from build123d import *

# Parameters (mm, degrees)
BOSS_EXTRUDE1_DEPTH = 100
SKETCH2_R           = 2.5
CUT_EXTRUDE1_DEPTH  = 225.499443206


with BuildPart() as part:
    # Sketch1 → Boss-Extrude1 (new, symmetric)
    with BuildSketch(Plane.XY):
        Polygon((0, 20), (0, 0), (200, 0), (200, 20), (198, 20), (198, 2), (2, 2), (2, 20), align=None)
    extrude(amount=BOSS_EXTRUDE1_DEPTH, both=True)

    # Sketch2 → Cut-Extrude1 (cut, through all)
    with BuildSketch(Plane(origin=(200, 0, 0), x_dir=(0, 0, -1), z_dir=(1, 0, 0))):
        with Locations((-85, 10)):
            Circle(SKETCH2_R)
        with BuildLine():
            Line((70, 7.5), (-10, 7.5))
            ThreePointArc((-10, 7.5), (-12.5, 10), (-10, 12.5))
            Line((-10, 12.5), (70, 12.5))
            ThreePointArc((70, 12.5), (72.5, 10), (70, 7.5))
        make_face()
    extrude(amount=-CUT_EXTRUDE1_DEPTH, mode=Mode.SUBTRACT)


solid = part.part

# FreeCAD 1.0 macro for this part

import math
import FreeCAD as App
import Part
import Sketcher
from FreeCAD import Vector


def add_polygon(sketch, points):
    """Adds a closed chain of lines whose ends are joined by coincident constraints."""
    first, n = sketch.GeometryCount, len(points)
    for a, b in zip(points, points[1:] + points[:1]):
        sketch.addGeometry(Part.LineSegment(App.Vector(*a, 0), App.Vector(*b, 0)), False)
    for i in range(n):
        sketch.addConstraint(Sketcher.Constraint("Coincident", first + i, 2, first + (i + 1) % n, 1))

doc = App.newDocument("Part")
body = doc.addObject("PartDesign::Body", "Body")

# Sketch on XY plane
sketch1 = body.newObject("Sketcher::SketchObject", "Sketch")
sketch1.AttachmentSupport = (doc.getObject("XY_Plane"), [""])
sketch1.MapMode = "FlatFace"
add_polygon(sketch1, [(0, 20), (0, 0), (200, 0), (200, 20), (198, 20), (198, 2), (2, 2), (2, 20)])  # lines 0-7
sketch1.addConstraint([
    Sketcher.Constraint("Vertical", 0),
    Sketcher.Constraint("Horizontal", 1),
    Sketcher.Constraint("Vertical", 2),
    Sketcher.Constraint("Horizontal", 3),
    Sketcher.Constraint("Vertical", 4),
    Sketcher.Constraint("Horizontal", 5),
    Sketcher.Constraint("Vertical", 6),
    Sketcher.Constraint("Horizontal", 7),
    Sketcher.Constraint("Coincident", 0, 2, -1, 1),
    Sketcher.Constraint("Horizontal", 3, 2, 6, 2),
    Sketcher.Constraint("Equal", 3, 7),
    Sketcher.Constraint("DistanceX", 1, 1, 1, 2, 200.0),
    Sketcher.Constraint("DistanceX", 3, 2, 3, 1, 2.0),
    Sketcher.Constraint("DistanceY", 0, 2, 0, 1, 20.0),
    Sketcher.Constraint("DistanceY", 4, 2, 4, 1, 18.0),
])
pad1 = body.newObject("PartDesign::Pad", "Pad")
pad1.Profile = sketch1
pad1.Length = 200
pad1.Midplane = True

# Sketch on YZ plane
sketch2 = body.newObject("Sketcher::SketchObject", "Sketch001")
sketch2.AttachmentSupport = (doc.getObject("YZ_Plane"), [""])
sketch2.MapMode = "FlatFace"
sketch2.AttachmentOffset = App.Placement(Vector(0, 0, 200), App.Rotation())
sketch2.addGeometry([
    Part.Circle(Vector(10, 85, 0), Vector(0, 0, 1), 2.5),  # 0
    Part.LineSegment(Vector(7.5, 10, 0), Vector(7.5, -70, 0)),  # 1
    Part.ArcOfCircle(Part.Circle(Vector(10, -70, 0), Vector(0, 0, 1), 2.5), math.radians(180), math.radians(360)),  # 2
    Part.LineSegment(Vector(12.5, -70, 0), Vector(12.5, 10, 0)),  # 3
    Part.ArcOfCircle(Part.Circle(Vector(10, 10, 0), Vector(0, 0, 1), 2.5), math.radians(0), math.radians(180)),  # 4
], False)
sketch2.addConstraint([
    Sketcher.Constraint("Tangent", 1, 2, 2, 1),
    Sketcher.Constraint("Tangent", 2, 2, 3, 1),
    Sketcher.Constraint("Tangent", 3, 2, 4, 1),
    Sketcher.Constraint("Tangent", 4, 2, 1, 1),
    Sketcher.Constraint("Vertical", 1),
    Sketcher.Constraint("Vertical", 3),
    Sketcher.Constraint("Equal", 0, 2),
    Sketcher.Constraint("Vertical", 0, 3, 2, 3),
    Sketcher.Constraint("Diameter", 0, 5.0),
    Sketcher.Constraint("DistanceY", 1, 2, 1, 1, 80.0),
    Sketcher.Constraint("DistanceX", -1, 1, 0, 3, 10.0),
    Sketcher.Constraint("DistanceY", -1, 1, 0, 3, 85.0),
    Sketcher.Constraint("DistanceY", 2, 3, -1, 1, 70.0),
])
pocket1 = body.newObject("PartDesign::Pocket", "Pocket")
pocket1.Profile = sketch2
pocket1.Type = "ThroughAll"

doc.recompute()
